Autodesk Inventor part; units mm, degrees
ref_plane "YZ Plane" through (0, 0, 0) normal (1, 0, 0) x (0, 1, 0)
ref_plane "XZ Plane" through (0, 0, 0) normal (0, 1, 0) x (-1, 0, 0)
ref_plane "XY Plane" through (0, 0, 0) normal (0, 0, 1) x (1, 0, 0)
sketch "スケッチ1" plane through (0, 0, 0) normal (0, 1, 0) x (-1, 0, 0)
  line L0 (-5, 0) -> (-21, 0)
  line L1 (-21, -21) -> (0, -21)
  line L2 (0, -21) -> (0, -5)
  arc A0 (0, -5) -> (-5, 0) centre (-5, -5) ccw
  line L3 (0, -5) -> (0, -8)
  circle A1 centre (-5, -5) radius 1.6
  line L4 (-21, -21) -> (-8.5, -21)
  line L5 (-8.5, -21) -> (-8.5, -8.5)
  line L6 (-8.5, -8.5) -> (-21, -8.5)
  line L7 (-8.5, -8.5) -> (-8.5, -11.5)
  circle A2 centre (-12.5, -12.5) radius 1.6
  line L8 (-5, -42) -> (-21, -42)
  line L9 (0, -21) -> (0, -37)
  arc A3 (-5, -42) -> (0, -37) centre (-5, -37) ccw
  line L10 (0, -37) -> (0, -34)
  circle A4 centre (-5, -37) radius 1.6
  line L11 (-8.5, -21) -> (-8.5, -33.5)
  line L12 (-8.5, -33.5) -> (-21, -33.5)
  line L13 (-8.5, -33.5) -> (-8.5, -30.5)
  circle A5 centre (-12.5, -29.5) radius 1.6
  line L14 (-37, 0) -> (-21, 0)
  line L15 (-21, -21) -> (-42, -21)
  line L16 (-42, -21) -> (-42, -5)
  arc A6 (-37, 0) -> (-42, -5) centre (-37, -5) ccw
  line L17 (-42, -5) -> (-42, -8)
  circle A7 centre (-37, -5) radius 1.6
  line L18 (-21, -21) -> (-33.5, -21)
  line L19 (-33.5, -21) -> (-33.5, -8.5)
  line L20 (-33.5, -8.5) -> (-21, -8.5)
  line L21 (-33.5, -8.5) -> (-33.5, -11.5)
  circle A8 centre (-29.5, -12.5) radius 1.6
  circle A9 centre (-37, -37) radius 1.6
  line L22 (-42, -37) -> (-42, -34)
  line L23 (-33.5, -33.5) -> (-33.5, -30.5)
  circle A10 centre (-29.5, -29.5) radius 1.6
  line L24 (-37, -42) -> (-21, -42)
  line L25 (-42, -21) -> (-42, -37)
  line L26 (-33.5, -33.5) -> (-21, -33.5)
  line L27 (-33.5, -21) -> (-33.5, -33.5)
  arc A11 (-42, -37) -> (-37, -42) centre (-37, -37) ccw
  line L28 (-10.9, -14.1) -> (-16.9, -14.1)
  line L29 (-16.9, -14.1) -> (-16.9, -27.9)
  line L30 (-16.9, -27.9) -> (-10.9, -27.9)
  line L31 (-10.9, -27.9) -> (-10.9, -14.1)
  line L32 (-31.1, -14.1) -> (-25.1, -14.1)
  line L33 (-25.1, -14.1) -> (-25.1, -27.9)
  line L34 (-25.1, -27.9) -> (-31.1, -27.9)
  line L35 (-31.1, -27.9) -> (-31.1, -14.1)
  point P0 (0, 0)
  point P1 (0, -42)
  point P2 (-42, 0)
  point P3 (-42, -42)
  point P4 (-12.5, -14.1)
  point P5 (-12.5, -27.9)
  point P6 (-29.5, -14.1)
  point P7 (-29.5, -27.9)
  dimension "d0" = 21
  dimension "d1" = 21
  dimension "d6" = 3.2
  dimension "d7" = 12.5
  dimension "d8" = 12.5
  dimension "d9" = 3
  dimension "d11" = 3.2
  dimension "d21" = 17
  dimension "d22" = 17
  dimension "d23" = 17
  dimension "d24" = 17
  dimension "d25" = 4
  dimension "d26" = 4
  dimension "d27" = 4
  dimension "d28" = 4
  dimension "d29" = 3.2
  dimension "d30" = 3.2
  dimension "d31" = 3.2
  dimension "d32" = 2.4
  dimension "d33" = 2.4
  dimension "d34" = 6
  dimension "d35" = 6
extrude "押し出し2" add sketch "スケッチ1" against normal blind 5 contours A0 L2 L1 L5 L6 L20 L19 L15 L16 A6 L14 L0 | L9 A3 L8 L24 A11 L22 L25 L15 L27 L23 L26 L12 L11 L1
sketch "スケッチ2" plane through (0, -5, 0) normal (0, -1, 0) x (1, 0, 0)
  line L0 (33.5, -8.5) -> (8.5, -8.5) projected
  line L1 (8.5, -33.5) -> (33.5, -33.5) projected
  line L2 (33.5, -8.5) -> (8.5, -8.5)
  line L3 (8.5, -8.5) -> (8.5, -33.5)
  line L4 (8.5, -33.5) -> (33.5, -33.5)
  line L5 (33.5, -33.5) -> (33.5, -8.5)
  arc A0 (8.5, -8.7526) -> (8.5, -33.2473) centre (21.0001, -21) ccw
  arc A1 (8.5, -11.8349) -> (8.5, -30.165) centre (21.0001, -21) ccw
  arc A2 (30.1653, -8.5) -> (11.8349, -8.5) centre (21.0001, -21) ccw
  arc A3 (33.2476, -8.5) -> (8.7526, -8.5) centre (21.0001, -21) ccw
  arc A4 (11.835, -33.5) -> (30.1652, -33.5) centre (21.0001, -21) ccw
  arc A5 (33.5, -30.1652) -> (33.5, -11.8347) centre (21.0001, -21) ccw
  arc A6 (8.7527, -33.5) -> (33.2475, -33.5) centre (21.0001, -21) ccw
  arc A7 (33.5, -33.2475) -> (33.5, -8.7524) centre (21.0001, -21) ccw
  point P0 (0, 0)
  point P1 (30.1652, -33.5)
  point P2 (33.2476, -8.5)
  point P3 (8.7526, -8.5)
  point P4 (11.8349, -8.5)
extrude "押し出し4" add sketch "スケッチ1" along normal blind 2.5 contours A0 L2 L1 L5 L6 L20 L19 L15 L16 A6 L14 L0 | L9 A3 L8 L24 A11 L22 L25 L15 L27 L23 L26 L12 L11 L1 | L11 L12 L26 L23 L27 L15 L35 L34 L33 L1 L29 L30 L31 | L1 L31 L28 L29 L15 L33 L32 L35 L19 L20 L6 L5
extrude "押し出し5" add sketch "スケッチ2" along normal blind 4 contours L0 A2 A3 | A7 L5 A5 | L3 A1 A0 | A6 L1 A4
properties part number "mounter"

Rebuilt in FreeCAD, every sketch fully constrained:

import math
import FreeCAD as App
import Part
import Sketcher
from FreeCAD import Vector

doc = App.newDocument("Part")
body = doc.addObject("PartDesign::Body", "Body")

sketch1 = body.newObject("Sketcher::SketchObject", "Sketch")
sketch1.AttachmentSupport = (doc.getObject("XZ_Plane"), [""])
sketch1.MapMode = "FlatFace"
sketch1.addGeometry(Part.ArcOfCircle(Part.Circle(Vector(5, -5, 0), Vector(0, 0, 1), 5), math.radians(90), math.radians(180)), False)
sketch1.addGeometry(Part.LineSegment(Vector(5, 0, 0), Vector(37, 0, 0)), False)
sketch1.addGeometry(Part.ArcOfCircle(Part.Circle(Vector(37, -5, 0), Vector(0, 0, 1), 5), math.radians(0), math.radians(90)), False)
sketch1.addGeometry(Part.LineSegment(Vector(42, -5, 0), Vector(42, -37, 0)), False)
sketch1.addGeometry(Part.ArcOfCircle(Part.Circle(Vector(37, -37, 0), Vector(0, 0, 1), 5), math.radians(-90), math.radians(0)), False)
sketch1.addGeometry(Part.LineSegment(Vector(37, -42, 0), Vector(5, -42, 0)), False)
sketch1.addGeometry(Part.ArcOfCircle(Part.Circle(Vector(5, -37, 0), Vector(0, 0, 1), 5), math.radians(180), math.radians(270)), False)
sketch1.addGeometry(Part.LineSegment(Vector(0, -37, 0), Vector(0, -5, 0)), False)
sketch1.addGeometry(Part.LineSegment(Vector(8.5, -33.5, 0), Vector(33.5, -33.5, 0)), False)
sketch1.addGeometry(Part.LineSegment(Vector(33.5, -33.5, 0), Vector(33.5, -8.5, 0)), False)
sketch1.addGeometry(Part.LineSegment(Vector(33.5, -8.5, 0), Vector(8.5, -8.5, 0)), False)
sketch1.addGeometry(Part.LineSegment(Vector(8.5, -8.5, 0), Vector(8.5, -33.5, 0)), False)
sketch1.addGeometry(Part.Circle(Vector(37, -5, 0), Vector(0, 0, 1), 1.6), False)
sketch1.addGeometry(Part.Circle(Vector(5, -5, 0), Vector(0, 0, 1), 1.6), False)
sketch1.addGeometry(Part.Circle(Vector(37, -37, 0), Vector(0, 0, 1), 1.6), False)
sketch1.addGeometry(Part.Circle(Vector(5, -37, 0), Vector(0, 0, 1), 1.6), False)
sketch1.addConstraint(Sketcher.Constraint("Tangent", 0, 1, 1, 1))
sketch1.addConstraint(Sketcher.Constraint("Tangent", 1, 2, 2, 2))
sketch1.addConstraint(Sketcher.Constraint("Tangent", 2, 1, 3, 1))
sketch1.addConstraint(Sketcher.Constraint("Tangent", 3, 2, 4, 2))
sketch1.addConstraint(Sketcher.Constraint("Tangent", 4, 1, 5, 1))
sketch1.addConstraint(Sketcher.Constraint("Tangent", 5, 2, 6, 2))
sketch1.addConstraint(Sketcher.Constraint("Tangent", 6, 1, 7, 1))
sketch1.addConstraint(Sketcher.Constraint("Tangent", 7, 2, 0, 2))
sketch1.addConstraint(Sketcher.Constraint("Coincident", 8, 2, 9, 1))
sketch1.addConstraint(Sketcher.Constraint("Coincident", 9, 2, 10, 1))
sketch1.addConstraint(Sketcher.Constraint("Coincident", 10, 2, 11, 1))
sketch1.addConstraint(Sketcher.Constraint("Coincident", 11, 2, 8, 1))
sketch1.addConstraint(Sketcher.Constraint("Horizontal", 1))
sketch1.addConstraint(Sketcher.Constraint("Vertical", 3))
sketch1.addConstraint(Sketcher.Constraint("Horizontal", 5))
sketch1.addConstraint(Sketcher.Constraint("Vertical", 7))
sketch1.addConstraint(Sketcher.Constraint("Horizontal", 8))
sketch1.addConstraint(Sketcher.Constraint("Vertical", 9))
sketch1.addConstraint(Sketcher.Constraint("Horizontal", 10))
sketch1.addConstraint(Sketcher.Constraint("Vertical", 11))
sketch1.addConstraint(Sketcher.Constraint("Coincident", 12, 3, 2, 3))
sketch1.addConstraint(Sketcher.Constraint("Coincident", 13, 3, 0, 3))
sketch1.addConstraint(Sketcher.Constraint("Coincident", 14, 3, 4, 3))
sketch1.addConstraint(Sketcher.Constraint("Coincident", 15, 3, 6, 3))
sketch1.addConstraint(Sketcher.Constraint("Equal", 0, 2))
sketch1.addConstraint(Sketcher.Constraint("Equal", 2, 4))
sketch1.addConstraint(Sketcher.Constraint("Equal", 4, 6))
sketch1.addConstraint(Sketcher.Constraint("Equal", 12, 13))
sketch1.addConstraint(Sketcher.Constraint("Equal", 13, 14))
sketch1.addConstraint(Sketcher.Constraint("Equal", 14, 15))
sketch1.addConstraint(Sketcher.Constraint("PointOnObject", 0, 1, -1))
sketch1.addConstraint(Sketcher.Constraint("PointOnObject", 6, 1, -2))
sketch1.addConstraint(Sketcher.Constraint("Equal", 5, 3))
sketch1.addConstraint(Sketcher.Constraint("Equal", 10, 9))
sketch1.addConstraint(Sketcher.Constraint("Diameter", 12, 3.2))
sketch1.addConstraint(Sketcher.Constraint("Radius", 0, 5.0))
sketch1.addConstraint(Sketcher.Constraint("DistanceX", 1, 1, 1, 2, 32.0))
sketch1.addConstraint(Sketcher.Constraint("DistanceX", 8, 1, 8, 2, 25.0))
sketch1.addConstraint(Sketcher.Constraint("DistanceX", -1, 1, 8, 2, 33.5))
sketch1.addConstraint(Sketcher.Constraint("DistanceY", 8, 2, -1, 1, 33.5))
pad1 = body.newObject("PartDesign::Pad", "Pad")
pad1.Profile = sketch1
pad1.Length = 5

sketch2 = body.newObject("Sketcher::SketchObject", "Sketch001")
sketch2.AttachmentSupport = (doc.getObject("XZ_Plane"), [""])
sketch2.MapMode = "FlatFace"
sketch2.addGeometry(Part.ArcOfCircle(Part.Circle(Vector(5, -5, 0), Vector(0, 0, 1), 5), math.radians(90), math.radians(180)), False)
sketch2.addGeometry(Part.LineSegment(Vector(5, 0, 0), Vector(37, 0, 0)), False)
sketch2.addGeometry(Part.ArcOfCircle(Part.Circle(Vector(37, -5, 0), Vector(0, 0, 1), 5), math.radians(0), math.radians(90)), False)
sketch2.addGeometry(Part.LineSegment(Vector(42, -5, 0), Vector(42, -37, 0)), False)
sketch2.addGeometry(Part.ArcOfCircle(Part.Circle(Vector(37, -37, 0), Vector(0, 0, 1), 5), math.radians(-90), math.radians(0)), False)
sketch2.addGeometry(Part.LineSegment(Vector(37, -42, 0), Vector(5, -42, 0)), False)
sketch2.addGeometry(Part.ArcOfCircle(Part.Circle(Vector(5, -37, 0), Vector(0, 0, 1), 5), math.radians(180), math.radians(270)), False)
sketch2.addGeometry(Part.LineSegment(Vector(0, -37, 0), Vector(0, -5, 0)), False)
sketch2.addGeometry(Part.Circle(Vector(37, -5, 0), Vector(0, 0, 1), 1.6), False)
sketch2.addGeometry(Part.Circle(Vector(5, -5, 0), Vector(0, 0, 1), 1.6), False)
sketch2.addGeometry(Part.Circle(Vector(37, -37, 0), Vector(0, 0, 1), 1.6), False)
sketch2.addGeometry(Part.Circle(Vector(5, -37, 0), Vector(0, 0, 1), 1.6), False)
sketch2.addGeometry(Part.Circle(Vector(12.5, -29.5, 0), Vector(0, 0, 1), 1.6), False)
sketch2.addGeometry(Part.LineSegment(Vector(12.5, -27.9, 0), Vector(16.9, -27.9, 0)), False)
sketch2.addGeometry(Part.LineSegment(Vector(16.9, -27.9, 0), Vector(16.9, -14.1, 0)), False)
sketch2.addGeometry(Part.LineSegment(Vector(16.9, -14.1, 0), Vector(12.5, -14.1, 0)), False)
sketch2.addGeometry(Part.LineSegment(Vector(12.5, -14.1, 0), Vector(10.9, -14.1, 0)), False)
sketch2.addGeometry(Part.LineSegment(Vector(10.9, -14.1, 0), Vector(10.9, -27.9, 0)), False)
sketch2.addGeometry(Part.LineSegment(Vector(10.9, -27.9, 0), Vector(12.5, -27.9, 0)), False)
sketch2.addGeometry(Part.Circle(Vector(29.5, -29.5, 0), Vector(0, 0, 1), 1.6), False)
sketch2.addGeometry(Part.LineSegment(Vector(29.5, -27.9, 0), Vector(31.1, -27.9, 0)), False)
sketch2.addGeometry(Part.LineSegment(Vector(31.1, -27.9, 0), Vector(31.1, -14.1, 0)), False)
sketch2.addGeometry(Part.LineSegment(Vector(31.1, -14.1, 0), Vector(29.5, -14.1, 0)), False)
sketch2.addGeometry(Part.LineSegment(Vector(29.5, -14.1, 0), Vector(25.1, -14.1, 0)), False)
sketch2.addGeometry(Part.LineSegment(Vector(25.1, -14.1, 0), Vector(25.1, -27.9, 0)), False)
sketch2.addGeometry(Part.LineSegment(Vector(25.1, -27.9, 0), Vector(29.5, -27.9, 0)), False)
sketch2.addGeometry(Part.Circle(Vector(12.5, -12.5, 0), Vector(0, 0, 1), 1.6), False)
sketch2.addGeometry(Part.Circle(Vector(29.5, -12.5, 0), Vector(0, 0, 1), 1.6), False)
sketch2.addConstraint(Sketcher.Constraint("Tangent", 0, 1, 1, 1))
sketch2.addConstraint(Sketcher.Constraint("Tangent", 1, 2, 2, 2))
sketch2.addConstraint(Sketcher.Constraint("Tangent", 2, 1, 3, 1))
sketch2.addConstraint(Sketcher.Constraint("Tangent", 3, 2, 4, 2))
sketch2.addConstraint(Sketcher.Constraint("Tangent", 4, 1, 5, 1))
sketch2.addConstraint(Sketcher.Constraint("Tangent", 5, 2, 6, 2))
sketch2.addConstraint(Sketcher.Constraint("Tangent", 6, 1, 7, 1))
sketch2.addConstraint(Sketcher.Constraint("Tangent", 7, 2, 0, 2))
sketch2.addConstraint(Sketcher.Constraint("Coincident", 13, 2, 14, 1))
sketch2.addConstraint(Sketcher.Constraint("Coincident", 14, 2, 15, 1))
sketch2.addConstraint(Sketcher.Constraint("Coincident", 15, 2, 16, 1))
sketch2.addConstraint(Sketcher.Constraint("Coincident", 16, 2, 17, 1))
sketch2.addConstraint(Sketcher.Constraint("Coincident", 17, 2, 18, 1))
sketch2.addConstraint(Sketcher.Constraint("Coincident", 18, 2, 13, 1))
sketch2.addConstraint(Sketcher.Constraint("Coincident", 20, 2, 21, 1))
sketch2.addConstraint(Sketcher.Constraint("Coincident", 21, 2, 22, 1))
sketch2.addConstraint(Sketcher.Constraint("Coincident", 22, 2, 23, 1))
sketch2.addConstraint(Sketcher.Constraint("Coincident", 23, 2, 24, 1))
sketch2.addConstraint(Sketcher.Constraint("Coincident", 24, 2, 25, 1))
sketch2.addConstraint(Sketcher.Constraint("Coincident", 25, 2, 20, 1))
sketch2.addConstraint(Sketcher.Constraint("Horizontal", 1))
sketch2.addConstraint(Sketcher.Constraint("Vertical", 3))
sketch2.addConstraint(Sketcher.Constraint("Horizontal", 5))
sketch2.addConstraint(Sketcher.Constraint("Vertical", 7))
sketch2.addConstraint(Sketcher.Constraint("Horizontal", 13))
sketch2.addConstraint(Sketcher.Constraint("Vertical", 14))
sketch2.addConstraint(Sketcher.Constraint("Horizontal", 15))
sketch2.addConstraint(Sketcher.Constraint("Horizontal", 16))
sketch2.addConstraint(Sketcher.Constraint("Vertical", 17))
sketch2.addConstraint(Sketcher.Constraint("Horizontal", 18))
sketch2.addConstraint(Sketcher.Constraint("Horizontal", 20))
sketch2.addConstraint(Sketcher.Constraint("Vertical", 21))
sketch2.addConstraint(Sketcher.Constraint("Horizontal", 22))
sketch2.addConstraint(Sketcher.Constraint("Horizontal", 23))
sketch2.addConstraint(Sketcher.Constraint("Vertical", 24))
sketch2.addConstraint(Sketcher.Constraint("Horizontal", 25))
sketch2.addConstraint(Sketcher.Constraint("Coincident", 8, 3, 2, 3))
sketch2.addConstraint(Sketcher.Constraint("Coincident", 9, 3, 0, 3))
sketch2.addConstraint(Sketcher.Constraint("Coincident", 10, 3, 4, 3))
sketch2.addConstraint(Sketcher.Constraint("Coincident", 11, 3, 6, 3))
sketch2.addConstraint(Sketcher.Constraint("Equal", 0, 2))
sketch2.addConstraint(Sketcher.Constraint("Equal", 2, 4))
sketch2.addConstraint(Sketcher.Constraint("Equal", 4, 6))
sketch2.addConstraint(Sketcher.Constraint("Equal", 8, 9))
sketch2.addConstraint(Sketcher.Constraint("Equal", 9, 10))
sketch2.addConstraint(Sketcher.Constraint("Equal", 10, 11))
sketch2.addConstraint(Sketcher.Constraint("Equal", 11, 12))
sketch2.addConstraint(Sketcher.Constraint("Equal", 12, 19))
sketch2.addConstraint(Sketcher.Constraint("Equal", 19, 26))
sketch2.addConstraint(Sketcher.Constraint("Equal", 26, 27))
sketch2.addConstraint(Sketcher.Constraint("PointOnObject", 0, 1, -1))
sketch2.addConstraint(Sketcher.Constraint("PointOnObject", 6, 1, -2))
sketch2.addConstraint(Sketcher.Constraint("Horizontal", 12, 3, 19, 3))
sketch2.addConstraint(Sketcher.Constraint("Horizontal", 26, 3, 27, 3))
sketch2.addConstraint(Sketcher.Constraint("Horizontal", 18, 2, 20, 2))
sketch2.addConstraint(Sketcher.Constraint("Horizontal", 16, 2, 21, 2))
sketch2.addConstraint(Sketcher.Constraint("Vertical", 12, 3, 26, 3))
sketch2.addConstraint(Sketcher.Constraint("Vertical", 19, 3, 27, 3))
sketch2.addConstraint(Sketcher.Constraint("Vertical", 26, 3, 15, 2))
sketch2.addConstraint(Sketcher.Constraint("Vertical", 15, 2, 18, 2))
sketch2.addConstraint(Sketcher.Constraint("Vertical", 27, 3, 22, 2))
sketch2.addConstraint(Sketcher.Constraint("Vertical", 22, 2, 25, 2))
sketch2.addConstraint(Sketcher.Constraint("Equal", 18, 20))
sketch2.addConstraint(Sketcher.Constraint("Equal", 15, 23))
sketch2.addConstraint(Sketcher.Constraint("Equal", 5, 3))
sketch2.addConstraint(Sketcher.Constraint("Diameter", 8, 3.2))
sketch2.addConstraint(Sketcher.Constraint("Radius", 0, 5.0))
sketch2.addConstraint(Sketcher.Constraint("DistanceX", 12, 3, 19, 3, 17.0))
sketch2.addConstraint(Sketcher.Constraint("DistanceY", 12, 3, 26, 3, 17.0))
sketch2.addConstraint(Sketcher.Constraint("DistanceX", 16, 2, 14, 2, 6.0))
sketch2.addConstraint(Sketcher.Constraint("DistanceX", -1, 1, 12, 3, 12.5))
sketch2.addConstraint(Sketcher.Constraint("DistanceY", 26, 3, -1, 1, 12.5))
sketch2.addConstraint(Sketcher.Constraint("DistanceX", 27, 3, 2, 1, 12.5))
sketch2.addConstraint(Sketcher.Constraint("DistanceX", 13, 1, 13, 2, 4.4))
sketch2.addConstraint(Sketcher.Constraint("DistanceY", 14, 1, 14, 2, 13.8))
sketch2.addConstraint(Sketcher.Constraint("DistanceY", 13, 2, -1, 1, 27.9))
pad2 = body.newObject("PartDesign::Pad", "Pad001")
pad2.Profile = sketch2
pad2.Length = 2.5
pad2.Reversed = True

sketch3 = body.newObject("Sketcher::SketchObject", "Sketch002")
sketch3.AttachmentSupport = (doc.getObject("XZ_Plane"), [""])
sketch3.MapMode = "FlatFace"
sketch3.AttachmentOffset = App.Placement(Vector(0, 0, 5), App.Rotation())
sketch3.addGeometry(Part.LineSegment(Vector(30.1653, -8.5, 0), Vector(33.2476, -8.5, 0)), False)
sketch3.addGeometry(Part.ArcOfCircle(Part.Circle(Vector(21.0001, -21, 0), Vector(0, 0, 1), 17.500036), math.radians(45.584571), math.radians(134.415429)), False)
sketch3.addGeometry(Part.LineSegment(Vector(8.7526, -8.5, 0), Vector(11.8349, -8.5, 0)), False)
sketch3.addGeometry(Part.ArcOfCircle(Part.Circle(Vector(21.0001, -21, 0), Vector(0, 0, 1), 15.500029), math.radians(53.750534), math.radians(126.249466)), False)
sketch3.addGeometry(Part.ArcOfCircle(Part.Circle(Vector(21.0001, -21, 0), Vector(0, 0, 1), 17.500037), math.radians(-44.415658), math.radians(44.415892)), False)
sketch3.addGeometry(Part.LineSegment(Vector(33.5, -8.7524, 0), Vector(33.5, -11.8347, 0)), False)
sketch3.addGeometry(Part.ArcOfCircle(Part.Circle(Vector(21.0001, -21, 0), Vector(0, 0, 1), 15.50005), math.radians(-36.249684), math.radians(36.249982)), False)
sketch3.addGeometry(Part.LineSegment(Vector(33.5, -30.1652, 0), Vector(33.5, -33.2475, 0)), False)
sketch3.addGeometry(Part.LineSegment(Vector(8.5, -11.8349, 0), Vector(8.5, -8.7526, 0)), False)
sketch3.addGeometry(Part.ArcOfCircle(Part.Circle(Vector(21.0001, -21, 0), Vector(0, 0, 1), 17.499964), math.radians(135.585034), math.radians(224.414732)), False)
sketch3.addGeometry(Part.LineSegment(Vector(8.5, -33.2473, 0), Vector(8.5, -30.165, 0)), False)
sketch3.addGeometry(Part.ArcOfCircle(Part.Circle(Vector(21.0001, -21, 0), Vector(0, 0, 1), 15.499948), math.radians(143.751051), math.radians(216.248651)), False)
sketch3.addGeometry(Part.ArcOfCircle(Part.Circle(Vector(21.0001, -21, 0), Vector(0, 0, 1), 17.499966), math.radians(-134.415195), math.radians(-45.584805)), False)
sketch3.addGeometry(Part.LineSegment(Vector(33.2475, -33.5, 0), Vector(30.1652, -33.5, 0)), False)
sketch3.addGeometry(Part.ArcOfCircle(Part.Circle(Vector(21.0001, -21, 0), Vector(0, 0, 1), 15.49997), math.radians(-126.249168), math.radians(-53.750832)), False)
sketch3.addGeometry(Part.LineSegment(Vector(11.835, -33.5, 0), Vector(8.7527, -33.5, 0)), False)
sketch3.addConstraint(Sketcher.Constraint("Coincident", 0, 2, 1, 1))
sketch3.addConstraint(Sketcher.Constraint("Coincident", 1, 2, 2, 1))
sketch3.addConstraint(Sketcher.Constraint("Coincident", 2, 2, 3, 2))
sketch3.addConstraint(Sketcher.Constraint("Coincident", 3, 1, 0, 1))
sketch3.addConstraint(Sketcher.Constraint("Coincident", 4, 2, 5, 1))
sketch3.addConstraint(Sketcher.Constraint("Coincident", 5, 2, 6, 2))
sketch3.addConstraint(Sketcher.Constraint("Coincident", 6, 1, 7, 1))
sketch3.addConstraint(Sketcher.Constraint("Coincident", 7, 2, 4, 1))
sketch3.addConstraint(Sketcher.Constraint("Coincident", 8, 2, 9, 1))
sketch3.addConstraint(Sketcher.Constraint("Coincident", 9, 2, 10, 1))
sketch3.addConstraint(Sketcher.Constraint("Coincident", 10, 2, 11, 2))
sketch3.addConstraint(Sketcher.Constraint("Coincident", 11, 1, 8, 1))
sketch3.addConstraint(Sketcher.Constraint("Coincident", 12, 2, 13, 1))
sketch3.addConstraint(Sketcher.Constraint("Coincident", 13, 2, 14, 2))
sketch3.addConstraint(Sketcher.Constraint("Coincident", 14, 1, 15, 1))
sketch3.addConstraint(Sketcher.Constraint("Coincident", 15, 2, 12, 1))
sketch3.addConstraint(Sketcher.Constraint("Horizontal", 0))
sketch3.addConstraint(Sketcher.Constraint("Horizontal", 2))
sketch3.addConstraint(Sketcher.Constraint("Vertical", 5))
sketch3.addConstraint(Sketcher.Constraint("Vertical", 7))
sketch3.addConstraint(Sketcher.Constraint("Vertical", 8))
sketch3.addConstraint(Sketcher.Constraint("Vertical", 10))
sketch3.addConstraint(Sketcher.Constraint("Horizontal", 13))
sketch3.addConstraint(Sketcher.Constraint("Horizontal", 15))
sketch3.addConstraint(Sketcher.Constraint("Coincident", 3, 3, 1, 3))
sketch3.addConstraint(Sketcher.Constraint("Coincident", 4, 3, 1, 3))
sketch3.addConstraint(Sketcher.Constraint("Coincident", 6, 3, 1, 3))
sketch3.addConstraint(Sketcher.Constraint("Coincident", 9, 3, 1, 3))
sketch3.addConstraint(Sketcher.Constraint("Coincident", 11, 3, 1, 3))
sketch3.addConstraint(Sketcher.Constraint("Coincident", 12, 3, 1, 3))
sketch3.addConstraint(Sketcher.Constraint("Coincident", 14, 3, 1, 3))
sketch3.addConstraint(Sketcher.Constraint("Equal", 1, 4))
sketch3.addConstraint(Sketcher.Constraint("Equal", 3, 6))
sketch3.addConstraint(Sketcher.Constraint("Equal", 4, 9))
sketch3.addConstraint(Sketcher.Constraint("Equal", 6, 11))
sketch3.addConstraint(Sketcher.Constraint("Equal", 9, 12))
sketch3.addConstraint(Sketcher.Constraint("Equal", 11, 14))
sketch3.addConstraint(Sketcher.Constraint("Horizontal", 0, 2, 1, 2))
sketch3.addConstraint(Sketcher.Constraint("Horizontal", 13, 2, 14, 1))
sketch3.addConstraint(Sketcher.Constraint("Vertical", 5, 2, 6, 1))
sketch3.addConstraint(Sketcher.Constraint("Vertical", 8, 2, 9, 2))
sketch3.addConstraint(Sketcher.Constraint("Vertical", 0, 2, 12, 2))
sketch3.addConstraint(Sketcher.Constraint("Equal", 15, 5))
sketch3.addConstraint(Sketcher.Constraint("Equal", 7, 8))
sketch3.addConstraint(Sketcher.Constraint("Radius", 1, 17.5))
sketch3.addConstraint(Sketcher.Constraint("Radius", 3, 15.5))
sketch3.addConstraint(Sketcher.Constraint("DistanceX", -1, 1, 1, 3, 21.0))
sketch3.addConstraint(Sketcher.Constraint("DistanceY", 1, 3, -1, 1, 21.0))
sketch3.addConstraint(Sketcher.Constraint("DistanceY", 0, 2, -1, 1, 8.5))
pad3 = body.newObject("PartDesign::Pad", "Pad002")
pad3.Profile = sketch3
pad3.Length = 4

doc.recompute()
